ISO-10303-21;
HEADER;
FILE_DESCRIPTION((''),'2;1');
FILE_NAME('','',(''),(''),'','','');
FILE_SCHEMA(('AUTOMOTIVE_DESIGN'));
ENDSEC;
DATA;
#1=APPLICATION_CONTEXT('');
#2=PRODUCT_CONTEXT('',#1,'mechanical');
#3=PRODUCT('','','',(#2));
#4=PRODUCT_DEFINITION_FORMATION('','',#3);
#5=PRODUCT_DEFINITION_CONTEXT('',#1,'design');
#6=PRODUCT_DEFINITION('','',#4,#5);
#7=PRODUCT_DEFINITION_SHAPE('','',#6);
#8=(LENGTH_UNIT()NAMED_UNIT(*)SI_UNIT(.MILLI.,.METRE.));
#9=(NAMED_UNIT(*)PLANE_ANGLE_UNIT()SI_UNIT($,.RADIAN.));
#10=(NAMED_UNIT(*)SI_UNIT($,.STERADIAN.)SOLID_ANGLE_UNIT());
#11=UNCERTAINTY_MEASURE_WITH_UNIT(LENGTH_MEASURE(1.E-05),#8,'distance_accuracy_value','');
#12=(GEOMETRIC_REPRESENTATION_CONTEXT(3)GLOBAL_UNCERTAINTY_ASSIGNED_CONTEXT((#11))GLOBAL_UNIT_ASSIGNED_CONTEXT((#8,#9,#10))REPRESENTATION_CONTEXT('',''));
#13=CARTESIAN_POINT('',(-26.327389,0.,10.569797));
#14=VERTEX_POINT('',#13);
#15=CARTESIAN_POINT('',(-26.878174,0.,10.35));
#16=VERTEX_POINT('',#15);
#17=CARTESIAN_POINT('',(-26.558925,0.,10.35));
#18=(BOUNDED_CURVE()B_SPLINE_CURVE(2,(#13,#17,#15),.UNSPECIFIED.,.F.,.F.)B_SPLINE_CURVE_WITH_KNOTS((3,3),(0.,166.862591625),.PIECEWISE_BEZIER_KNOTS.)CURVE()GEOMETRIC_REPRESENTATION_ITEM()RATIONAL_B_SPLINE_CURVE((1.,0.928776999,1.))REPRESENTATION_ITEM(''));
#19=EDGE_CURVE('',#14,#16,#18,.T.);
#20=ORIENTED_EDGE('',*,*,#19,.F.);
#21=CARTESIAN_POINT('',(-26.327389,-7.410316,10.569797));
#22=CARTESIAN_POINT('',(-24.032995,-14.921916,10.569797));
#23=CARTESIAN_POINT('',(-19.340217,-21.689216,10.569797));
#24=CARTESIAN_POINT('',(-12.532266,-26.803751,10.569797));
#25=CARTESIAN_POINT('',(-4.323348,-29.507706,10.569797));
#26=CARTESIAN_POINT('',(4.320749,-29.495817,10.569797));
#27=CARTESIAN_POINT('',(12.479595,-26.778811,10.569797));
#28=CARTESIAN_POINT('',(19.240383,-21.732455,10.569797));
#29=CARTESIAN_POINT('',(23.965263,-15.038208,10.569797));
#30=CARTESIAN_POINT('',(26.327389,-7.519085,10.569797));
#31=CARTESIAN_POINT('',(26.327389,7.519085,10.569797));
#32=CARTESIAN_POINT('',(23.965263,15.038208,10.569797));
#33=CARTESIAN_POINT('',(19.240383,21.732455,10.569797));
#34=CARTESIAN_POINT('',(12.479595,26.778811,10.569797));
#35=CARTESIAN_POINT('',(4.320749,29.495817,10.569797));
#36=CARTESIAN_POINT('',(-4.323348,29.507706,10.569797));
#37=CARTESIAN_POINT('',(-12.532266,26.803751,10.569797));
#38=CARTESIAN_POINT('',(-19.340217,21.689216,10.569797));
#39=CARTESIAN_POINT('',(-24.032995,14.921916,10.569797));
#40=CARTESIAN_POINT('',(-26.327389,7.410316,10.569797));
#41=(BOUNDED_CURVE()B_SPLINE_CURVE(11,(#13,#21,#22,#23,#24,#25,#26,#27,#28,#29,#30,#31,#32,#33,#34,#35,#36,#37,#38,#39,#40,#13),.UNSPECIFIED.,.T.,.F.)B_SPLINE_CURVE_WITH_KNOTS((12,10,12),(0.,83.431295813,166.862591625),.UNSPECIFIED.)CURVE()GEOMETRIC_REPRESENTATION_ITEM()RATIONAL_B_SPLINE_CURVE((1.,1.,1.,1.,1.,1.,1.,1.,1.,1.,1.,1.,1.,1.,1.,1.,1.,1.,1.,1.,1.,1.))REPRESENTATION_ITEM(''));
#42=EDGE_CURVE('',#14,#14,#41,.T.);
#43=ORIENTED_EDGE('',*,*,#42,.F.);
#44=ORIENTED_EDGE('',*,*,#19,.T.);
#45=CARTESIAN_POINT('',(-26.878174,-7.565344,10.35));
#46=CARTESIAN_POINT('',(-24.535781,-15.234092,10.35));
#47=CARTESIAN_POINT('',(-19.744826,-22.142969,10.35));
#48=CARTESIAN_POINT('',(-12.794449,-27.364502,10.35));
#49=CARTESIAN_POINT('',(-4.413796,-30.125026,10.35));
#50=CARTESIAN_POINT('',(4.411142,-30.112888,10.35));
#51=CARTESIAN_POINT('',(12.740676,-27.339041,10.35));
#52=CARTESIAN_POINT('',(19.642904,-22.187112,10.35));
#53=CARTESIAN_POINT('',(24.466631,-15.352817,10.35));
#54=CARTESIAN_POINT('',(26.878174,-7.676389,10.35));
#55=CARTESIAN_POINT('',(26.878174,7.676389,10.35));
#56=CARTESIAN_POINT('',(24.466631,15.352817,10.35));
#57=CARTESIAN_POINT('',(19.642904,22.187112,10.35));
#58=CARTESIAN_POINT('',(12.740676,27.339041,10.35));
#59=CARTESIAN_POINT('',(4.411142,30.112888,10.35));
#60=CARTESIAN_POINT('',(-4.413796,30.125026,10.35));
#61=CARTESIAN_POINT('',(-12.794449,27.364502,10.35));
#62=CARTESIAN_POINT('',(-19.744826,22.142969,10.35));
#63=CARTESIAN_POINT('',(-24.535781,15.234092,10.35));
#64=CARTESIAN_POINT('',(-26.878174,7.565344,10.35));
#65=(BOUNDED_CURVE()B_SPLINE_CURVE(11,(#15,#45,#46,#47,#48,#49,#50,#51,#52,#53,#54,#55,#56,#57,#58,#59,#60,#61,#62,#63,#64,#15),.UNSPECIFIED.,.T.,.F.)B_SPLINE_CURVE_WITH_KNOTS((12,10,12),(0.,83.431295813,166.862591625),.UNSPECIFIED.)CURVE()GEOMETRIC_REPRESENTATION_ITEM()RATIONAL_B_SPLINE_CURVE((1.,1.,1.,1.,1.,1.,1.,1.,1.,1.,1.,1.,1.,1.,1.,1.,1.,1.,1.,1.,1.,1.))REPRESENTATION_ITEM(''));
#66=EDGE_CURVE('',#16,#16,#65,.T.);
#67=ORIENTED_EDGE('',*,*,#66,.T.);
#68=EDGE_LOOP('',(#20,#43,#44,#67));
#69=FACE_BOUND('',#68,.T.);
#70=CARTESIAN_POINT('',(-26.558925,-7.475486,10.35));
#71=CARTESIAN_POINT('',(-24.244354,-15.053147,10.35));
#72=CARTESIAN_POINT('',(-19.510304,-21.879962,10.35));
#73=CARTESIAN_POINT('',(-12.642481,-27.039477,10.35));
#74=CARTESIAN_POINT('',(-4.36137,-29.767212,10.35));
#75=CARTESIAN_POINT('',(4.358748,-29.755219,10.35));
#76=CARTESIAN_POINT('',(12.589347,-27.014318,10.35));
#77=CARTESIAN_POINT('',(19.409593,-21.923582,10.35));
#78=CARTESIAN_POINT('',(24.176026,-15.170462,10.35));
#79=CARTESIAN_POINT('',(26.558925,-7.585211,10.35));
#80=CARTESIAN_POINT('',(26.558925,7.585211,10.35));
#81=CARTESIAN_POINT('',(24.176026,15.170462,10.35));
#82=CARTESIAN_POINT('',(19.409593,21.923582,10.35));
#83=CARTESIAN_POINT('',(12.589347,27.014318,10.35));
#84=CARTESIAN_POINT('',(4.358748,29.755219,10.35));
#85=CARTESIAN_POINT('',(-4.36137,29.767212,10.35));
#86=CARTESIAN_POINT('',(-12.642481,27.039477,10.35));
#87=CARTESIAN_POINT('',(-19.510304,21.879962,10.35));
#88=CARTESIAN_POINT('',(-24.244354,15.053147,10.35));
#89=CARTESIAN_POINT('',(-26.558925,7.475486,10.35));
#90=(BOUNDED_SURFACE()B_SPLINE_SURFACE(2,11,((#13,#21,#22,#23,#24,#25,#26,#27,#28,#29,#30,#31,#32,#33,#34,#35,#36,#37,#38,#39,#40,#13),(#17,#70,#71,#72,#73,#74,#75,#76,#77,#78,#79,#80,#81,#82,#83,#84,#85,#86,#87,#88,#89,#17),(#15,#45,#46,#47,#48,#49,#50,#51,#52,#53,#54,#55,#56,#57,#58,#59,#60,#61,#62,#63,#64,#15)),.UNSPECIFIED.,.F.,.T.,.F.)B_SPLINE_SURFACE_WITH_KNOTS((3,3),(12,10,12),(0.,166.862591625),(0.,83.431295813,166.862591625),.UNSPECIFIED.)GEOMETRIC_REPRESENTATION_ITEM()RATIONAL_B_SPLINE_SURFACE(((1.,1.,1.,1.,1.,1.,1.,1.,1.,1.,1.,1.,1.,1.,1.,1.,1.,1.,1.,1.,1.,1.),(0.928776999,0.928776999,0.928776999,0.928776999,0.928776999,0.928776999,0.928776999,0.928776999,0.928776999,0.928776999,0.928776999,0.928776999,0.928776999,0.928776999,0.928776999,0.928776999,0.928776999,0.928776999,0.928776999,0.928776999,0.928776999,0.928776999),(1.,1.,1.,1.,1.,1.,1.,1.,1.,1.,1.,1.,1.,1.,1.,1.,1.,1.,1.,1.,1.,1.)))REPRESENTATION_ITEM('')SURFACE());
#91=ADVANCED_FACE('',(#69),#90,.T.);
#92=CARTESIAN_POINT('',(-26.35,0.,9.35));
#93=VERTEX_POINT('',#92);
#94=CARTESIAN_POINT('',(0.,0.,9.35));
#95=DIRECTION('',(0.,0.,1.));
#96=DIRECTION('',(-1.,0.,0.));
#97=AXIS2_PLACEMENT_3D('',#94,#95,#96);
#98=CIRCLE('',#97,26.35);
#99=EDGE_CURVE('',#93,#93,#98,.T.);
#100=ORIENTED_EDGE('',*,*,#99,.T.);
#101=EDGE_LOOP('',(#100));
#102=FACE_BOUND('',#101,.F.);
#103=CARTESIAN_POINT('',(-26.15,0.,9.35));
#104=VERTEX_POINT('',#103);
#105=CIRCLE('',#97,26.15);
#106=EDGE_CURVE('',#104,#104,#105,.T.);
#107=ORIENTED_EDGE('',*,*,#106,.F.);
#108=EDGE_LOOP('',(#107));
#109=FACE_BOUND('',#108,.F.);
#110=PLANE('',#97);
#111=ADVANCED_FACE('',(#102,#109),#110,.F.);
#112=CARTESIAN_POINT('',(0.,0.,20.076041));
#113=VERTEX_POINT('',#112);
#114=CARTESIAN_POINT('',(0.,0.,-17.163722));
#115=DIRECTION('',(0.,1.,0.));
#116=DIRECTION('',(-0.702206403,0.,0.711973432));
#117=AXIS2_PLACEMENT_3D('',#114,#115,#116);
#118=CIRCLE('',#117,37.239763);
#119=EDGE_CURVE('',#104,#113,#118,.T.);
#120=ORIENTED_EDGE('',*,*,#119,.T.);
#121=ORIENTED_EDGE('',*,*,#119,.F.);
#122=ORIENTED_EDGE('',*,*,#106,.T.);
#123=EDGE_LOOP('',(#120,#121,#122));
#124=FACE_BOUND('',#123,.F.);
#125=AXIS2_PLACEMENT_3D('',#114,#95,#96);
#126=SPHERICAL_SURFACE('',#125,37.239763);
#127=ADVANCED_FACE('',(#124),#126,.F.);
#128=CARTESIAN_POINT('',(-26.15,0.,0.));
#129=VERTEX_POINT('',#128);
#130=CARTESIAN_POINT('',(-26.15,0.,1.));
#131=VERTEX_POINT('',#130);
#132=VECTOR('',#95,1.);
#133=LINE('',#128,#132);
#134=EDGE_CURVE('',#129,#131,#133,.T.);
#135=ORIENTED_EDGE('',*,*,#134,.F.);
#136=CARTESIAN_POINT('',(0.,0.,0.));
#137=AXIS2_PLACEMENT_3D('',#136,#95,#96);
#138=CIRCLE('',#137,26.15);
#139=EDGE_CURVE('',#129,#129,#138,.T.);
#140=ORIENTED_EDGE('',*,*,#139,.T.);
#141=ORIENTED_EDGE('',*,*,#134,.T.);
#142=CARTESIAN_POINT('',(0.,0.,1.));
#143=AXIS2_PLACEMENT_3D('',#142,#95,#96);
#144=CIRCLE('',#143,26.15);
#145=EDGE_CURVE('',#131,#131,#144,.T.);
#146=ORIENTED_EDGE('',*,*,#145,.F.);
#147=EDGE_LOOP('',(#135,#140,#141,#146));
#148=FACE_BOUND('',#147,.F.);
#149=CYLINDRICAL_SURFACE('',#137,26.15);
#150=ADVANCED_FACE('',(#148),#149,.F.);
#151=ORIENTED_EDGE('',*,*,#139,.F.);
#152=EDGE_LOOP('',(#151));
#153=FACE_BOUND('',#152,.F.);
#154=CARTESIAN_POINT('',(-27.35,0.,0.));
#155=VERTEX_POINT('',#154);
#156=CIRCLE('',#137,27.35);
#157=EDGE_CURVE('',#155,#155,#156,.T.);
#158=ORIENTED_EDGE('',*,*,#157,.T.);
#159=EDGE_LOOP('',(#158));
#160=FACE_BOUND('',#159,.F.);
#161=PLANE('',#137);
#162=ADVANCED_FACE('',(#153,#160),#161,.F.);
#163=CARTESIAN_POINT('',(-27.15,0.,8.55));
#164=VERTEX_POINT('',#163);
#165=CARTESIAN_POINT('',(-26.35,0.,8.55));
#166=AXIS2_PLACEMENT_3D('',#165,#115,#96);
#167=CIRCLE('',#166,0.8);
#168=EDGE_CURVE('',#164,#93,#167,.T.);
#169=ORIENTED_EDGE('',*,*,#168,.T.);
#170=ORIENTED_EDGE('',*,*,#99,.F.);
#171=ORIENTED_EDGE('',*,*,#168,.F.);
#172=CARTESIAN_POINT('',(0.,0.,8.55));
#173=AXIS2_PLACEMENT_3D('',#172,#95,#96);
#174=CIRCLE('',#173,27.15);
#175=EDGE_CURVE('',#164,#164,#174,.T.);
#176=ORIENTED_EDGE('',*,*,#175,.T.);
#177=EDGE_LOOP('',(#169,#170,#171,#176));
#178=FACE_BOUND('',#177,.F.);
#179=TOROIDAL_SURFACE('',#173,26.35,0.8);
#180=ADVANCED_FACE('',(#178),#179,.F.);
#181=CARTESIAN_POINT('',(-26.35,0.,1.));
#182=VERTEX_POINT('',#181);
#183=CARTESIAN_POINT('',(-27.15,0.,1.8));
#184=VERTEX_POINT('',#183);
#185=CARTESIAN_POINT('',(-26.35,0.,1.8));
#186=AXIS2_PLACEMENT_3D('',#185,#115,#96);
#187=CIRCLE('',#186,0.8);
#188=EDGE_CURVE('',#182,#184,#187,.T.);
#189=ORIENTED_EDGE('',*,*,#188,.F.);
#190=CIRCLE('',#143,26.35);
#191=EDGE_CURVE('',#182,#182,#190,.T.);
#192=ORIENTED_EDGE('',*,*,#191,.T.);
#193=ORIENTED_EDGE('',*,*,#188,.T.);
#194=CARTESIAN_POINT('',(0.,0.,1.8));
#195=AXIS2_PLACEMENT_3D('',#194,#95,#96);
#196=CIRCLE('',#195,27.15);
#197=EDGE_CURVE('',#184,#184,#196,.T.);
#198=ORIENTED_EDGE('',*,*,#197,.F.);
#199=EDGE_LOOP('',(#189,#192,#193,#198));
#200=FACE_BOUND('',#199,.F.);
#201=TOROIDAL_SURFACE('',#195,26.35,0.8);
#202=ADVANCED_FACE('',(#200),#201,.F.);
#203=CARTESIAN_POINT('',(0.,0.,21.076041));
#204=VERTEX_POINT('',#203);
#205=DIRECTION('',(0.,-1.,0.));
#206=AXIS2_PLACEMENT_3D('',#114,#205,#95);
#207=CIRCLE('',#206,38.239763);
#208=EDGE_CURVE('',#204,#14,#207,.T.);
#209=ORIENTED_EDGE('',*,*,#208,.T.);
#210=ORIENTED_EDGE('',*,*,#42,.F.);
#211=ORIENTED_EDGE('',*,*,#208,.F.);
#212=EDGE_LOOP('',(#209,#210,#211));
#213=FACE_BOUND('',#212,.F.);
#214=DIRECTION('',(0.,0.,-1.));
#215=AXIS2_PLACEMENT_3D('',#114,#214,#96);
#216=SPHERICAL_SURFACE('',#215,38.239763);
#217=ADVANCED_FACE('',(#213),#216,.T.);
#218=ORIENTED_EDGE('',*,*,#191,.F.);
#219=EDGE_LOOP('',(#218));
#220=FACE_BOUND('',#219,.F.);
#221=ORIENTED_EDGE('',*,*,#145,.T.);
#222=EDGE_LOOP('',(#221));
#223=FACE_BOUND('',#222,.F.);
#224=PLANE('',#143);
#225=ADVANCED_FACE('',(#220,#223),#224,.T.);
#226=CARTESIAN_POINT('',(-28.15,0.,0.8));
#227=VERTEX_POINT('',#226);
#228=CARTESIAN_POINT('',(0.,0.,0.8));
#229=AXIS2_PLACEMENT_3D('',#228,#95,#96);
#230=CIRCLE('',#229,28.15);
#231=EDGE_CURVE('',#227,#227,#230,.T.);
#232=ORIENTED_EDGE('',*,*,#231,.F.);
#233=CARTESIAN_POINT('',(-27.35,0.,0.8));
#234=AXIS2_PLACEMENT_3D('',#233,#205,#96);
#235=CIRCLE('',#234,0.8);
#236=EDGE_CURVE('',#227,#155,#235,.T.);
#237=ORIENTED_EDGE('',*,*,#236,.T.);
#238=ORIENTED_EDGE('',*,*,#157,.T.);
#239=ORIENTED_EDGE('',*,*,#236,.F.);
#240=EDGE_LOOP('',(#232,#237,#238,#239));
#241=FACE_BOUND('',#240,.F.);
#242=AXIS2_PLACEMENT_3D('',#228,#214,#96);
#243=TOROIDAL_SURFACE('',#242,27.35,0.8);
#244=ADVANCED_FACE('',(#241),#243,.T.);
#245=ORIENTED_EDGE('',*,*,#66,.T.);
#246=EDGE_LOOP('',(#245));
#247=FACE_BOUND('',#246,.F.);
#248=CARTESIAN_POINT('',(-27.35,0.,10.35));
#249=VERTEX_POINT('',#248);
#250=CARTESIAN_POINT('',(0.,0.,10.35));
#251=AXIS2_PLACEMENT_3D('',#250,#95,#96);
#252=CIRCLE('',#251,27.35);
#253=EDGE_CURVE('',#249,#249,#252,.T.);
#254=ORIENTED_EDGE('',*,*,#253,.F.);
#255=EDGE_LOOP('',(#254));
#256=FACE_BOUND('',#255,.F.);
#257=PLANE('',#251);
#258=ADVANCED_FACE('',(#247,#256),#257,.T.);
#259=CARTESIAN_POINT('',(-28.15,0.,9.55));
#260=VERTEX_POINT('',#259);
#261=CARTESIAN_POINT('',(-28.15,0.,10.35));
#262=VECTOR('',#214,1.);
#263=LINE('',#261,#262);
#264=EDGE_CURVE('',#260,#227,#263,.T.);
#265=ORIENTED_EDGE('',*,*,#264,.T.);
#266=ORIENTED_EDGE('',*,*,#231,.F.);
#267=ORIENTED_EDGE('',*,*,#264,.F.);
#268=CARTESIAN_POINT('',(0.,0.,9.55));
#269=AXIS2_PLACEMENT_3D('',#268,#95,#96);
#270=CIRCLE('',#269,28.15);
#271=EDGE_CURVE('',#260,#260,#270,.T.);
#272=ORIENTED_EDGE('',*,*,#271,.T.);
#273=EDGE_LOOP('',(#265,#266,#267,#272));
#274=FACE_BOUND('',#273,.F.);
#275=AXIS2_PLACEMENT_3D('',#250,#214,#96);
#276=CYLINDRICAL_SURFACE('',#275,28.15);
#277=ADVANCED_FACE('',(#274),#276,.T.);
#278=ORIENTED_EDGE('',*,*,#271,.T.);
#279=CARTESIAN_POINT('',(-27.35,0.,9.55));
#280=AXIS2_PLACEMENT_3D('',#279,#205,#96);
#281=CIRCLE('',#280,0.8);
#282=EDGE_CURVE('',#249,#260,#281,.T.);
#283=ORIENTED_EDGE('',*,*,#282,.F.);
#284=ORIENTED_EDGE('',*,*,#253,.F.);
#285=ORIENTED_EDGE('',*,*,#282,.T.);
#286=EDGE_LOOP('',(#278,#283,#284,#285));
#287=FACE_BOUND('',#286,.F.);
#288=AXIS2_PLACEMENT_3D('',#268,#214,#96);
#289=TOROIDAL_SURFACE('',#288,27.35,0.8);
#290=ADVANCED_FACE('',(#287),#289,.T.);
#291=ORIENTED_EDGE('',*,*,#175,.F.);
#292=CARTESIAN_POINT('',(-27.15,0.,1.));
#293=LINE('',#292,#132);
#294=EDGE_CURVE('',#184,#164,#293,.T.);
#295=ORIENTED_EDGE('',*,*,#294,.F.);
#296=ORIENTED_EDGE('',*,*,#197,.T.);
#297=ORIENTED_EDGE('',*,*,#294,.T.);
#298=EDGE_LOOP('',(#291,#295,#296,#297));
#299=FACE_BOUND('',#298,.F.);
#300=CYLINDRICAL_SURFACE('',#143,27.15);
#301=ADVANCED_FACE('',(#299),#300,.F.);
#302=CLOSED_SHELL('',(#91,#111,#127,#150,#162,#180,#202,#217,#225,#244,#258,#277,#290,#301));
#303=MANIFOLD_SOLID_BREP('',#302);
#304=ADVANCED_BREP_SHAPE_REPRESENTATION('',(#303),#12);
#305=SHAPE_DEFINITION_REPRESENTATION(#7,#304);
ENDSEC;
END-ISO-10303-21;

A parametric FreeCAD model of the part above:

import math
import FreeCAD as App
import Part
import Sketcher

V = App.Vector
Q = App.Units.Quantity


def edges_at(feature, points):
    """Names of the edges that pass closest to the given points."""
    edges = feature.Shape.Edges
    near = lambda p: min(range(len(edges)), key=lambda i: edges[i].distToShape(Part.Vertex(*p))[0])
    return sorted({f"Edge{near(p) + 1}" for p in points})

doc = App.newDocument("Part")
params = doc.addObject("Spreadsheet::Sheet", "Params")
for row, (alias, value) in enumerate([
    ("sketch1_width", "2 mm"),
    ("sketch1_width2", "1 mm"),
    ("sketch1_height", "10.35 mm"),
    ("revolution_angle", "360 deg"),
    ("fillet_radius", "0.8 mm"),
], start=1):
    params.set(f"A{row}", alias)
    params.set(f"B{row}", "=" + value)
    params.setAlias(f"B{row}", alias)

body = doc.addObject("PartDesign::Body", "Body")

# Sketch on XZ plane
sketch1 = body.newObject("Sketcher::SketchObject", "Sketch")
sketch1.AttachmentSupport = (doc.getObject("XZ_Plane"), [""])
sketch1.MapMode = "FlatFace"
sketch1.addGeometry([
    Part.ArcOfCircle(Part.Circle(V(0, -17.2, 0), V(0, 0, 1), 37.2), math.radians(90), math.radians(135)),  # 0
    Part.LineSegment(V(0, 20.1, 0), V(0, 21.1, 0)),  # 1
    Part.ArcOfCircle(Part.Circle(V(0, -17.2, 0), V(0, 0, 1), 38.2), math.radians(90), math.radians(134)),  # 2
    Part.LineSegment(V(-26.6, 10.3, 0), V(-28.1, 10.3, 0)),  # 3
    Part.LineSegment(V(-28.1, 10.3, 0), V(-28.1, 0, 0)),  # 4
    Part.LineSegment(V(-28.1, 0, 0), V(-26.1, 0, 0)),  # 5
    Part.LineSegment(V(-26.1, 0, 0), V(-26.1, 1, 0)),  # 6
    Part.LineSegment(V(-26.1, 1, 0), V(-27.1, 1, 0)),  # 7
    Part.LineSegment(V(-27.1, 1, 0), V(-27.1, 9.3, 0)),  # 8
    Part.LineSegment(V(-27.1, 9.3, 0), V(-26.1, 9.3, 0)),  # 9
], False)
sketch1.addConstraint([
    Sketcher.Constraint("Coincident", 0, 1, 1, 1),
    Sketcher.Constraint("Coincident", 1, 2, 2, 1),
    Sketcher.Constraint("Coincident", 2, 2, 3, 1),
    Sketcher.Constraint("Coincident", 3, 2, 4, 1),
    Sketcher.Constraint("Coincident", 4, 2, 5, 1),
    Sketcher.Constraint("Coincident", 5, 2, 6, 1),
    Sketcher.Constraint("Coincident", 6, 2, 7, 1),
    Sketcher.Constraint("Coincident", 7, 2, 8, 1),
    Sketcher.Constraint("Coincident", 8, 2, 9, 1),
    Sketcher.Constraint("Coincident", 9, 2, 0, 2),
    Sketcher.Constraint("Vertical", 1),
    Sketcher.Constraint("Horizontal", 3),
    Sketcher.Constraint("Vertical", 4),
    Sketcher.Constraint("Horizontal", 5),
    Sketcher.Constraint("Vertical", 6),
    Sketcher.Constraint("Horizontal", 7),
    Sketcher.Constraint("Vertical", 8),
    Sketcher.Constraint("Horizontal", 9),
    Sketcher.Constraint("Coincident", 2, 3, 0, 3),
    Sketcher.Constraint("PointOnObject", 0, 3, -2),
    Sketcher.Constraint("PointOnObject", 0, 1, -2),
    Sketcher.Constraint("PointOnObject", 4, 2, -1),
    Sketcher.Constraint("Vertical", 6, 2, 9, 2),
    Sketcher.Constraint("Equal", 9, 1),
    Sketcher.Constraint("Equal", 1, 6),
    Sketcher.Constraint("DistanceX", 5, 1, 5, 2, Q("2 mm")),
    Sketcher.Constraint("DistanceX", 7, 2, 7, 1, Q("1 mm")),
    Sketcher.Constraint("DistanceY", 8, 2, 2, 2, Q("1 mm")),
    Sketcher.Constraint("DistanceY", 4, 2, 4, 1, Q("10.35 mm")),
    Sketcher.Constraint("DistanceX", 3, 2, -1, 1, Q("28.15 mm")),
    Sketcher.Constraint("Radius", 0, Q("37.239763 mm")),
])
sketch1.setExpression("Constraints[25]", "Params.sketch1_width")
sketch1.setExpression("Constraints[26]", "Params.sketch1_width2")
sketch1.setExpression("Constraints[28]", "Params.sketch1_height")
revolution = body.newObject("PartDesign::Revolution", "Revolution")
revolution.Profile = sketch1
revolution.ReferenceAxis = (sketch1, ["V_Axis"])
revolution.setExpression("Angle", "Params.revolution_angle")
doc.recompute()

fillet = body.newObject("PartDesign::Fillet", "Fillet")
fillet.Base = (revolution, edges_at(revolution, [
    (28.15, 0, 10.35),
    (28.15, 0, 0),
    (-28.15, 0, 5.175),
    (26.557, 0, 10.35),
    (-14.321, 0, 18.293),
    (27.15, 0, 1),
    (27.15, 0, 9.35),
    (-27.15, 0, 5.175),
]))
fillet.setExpression("Radius", "Params.fillet_radius")

doc.recompute()
